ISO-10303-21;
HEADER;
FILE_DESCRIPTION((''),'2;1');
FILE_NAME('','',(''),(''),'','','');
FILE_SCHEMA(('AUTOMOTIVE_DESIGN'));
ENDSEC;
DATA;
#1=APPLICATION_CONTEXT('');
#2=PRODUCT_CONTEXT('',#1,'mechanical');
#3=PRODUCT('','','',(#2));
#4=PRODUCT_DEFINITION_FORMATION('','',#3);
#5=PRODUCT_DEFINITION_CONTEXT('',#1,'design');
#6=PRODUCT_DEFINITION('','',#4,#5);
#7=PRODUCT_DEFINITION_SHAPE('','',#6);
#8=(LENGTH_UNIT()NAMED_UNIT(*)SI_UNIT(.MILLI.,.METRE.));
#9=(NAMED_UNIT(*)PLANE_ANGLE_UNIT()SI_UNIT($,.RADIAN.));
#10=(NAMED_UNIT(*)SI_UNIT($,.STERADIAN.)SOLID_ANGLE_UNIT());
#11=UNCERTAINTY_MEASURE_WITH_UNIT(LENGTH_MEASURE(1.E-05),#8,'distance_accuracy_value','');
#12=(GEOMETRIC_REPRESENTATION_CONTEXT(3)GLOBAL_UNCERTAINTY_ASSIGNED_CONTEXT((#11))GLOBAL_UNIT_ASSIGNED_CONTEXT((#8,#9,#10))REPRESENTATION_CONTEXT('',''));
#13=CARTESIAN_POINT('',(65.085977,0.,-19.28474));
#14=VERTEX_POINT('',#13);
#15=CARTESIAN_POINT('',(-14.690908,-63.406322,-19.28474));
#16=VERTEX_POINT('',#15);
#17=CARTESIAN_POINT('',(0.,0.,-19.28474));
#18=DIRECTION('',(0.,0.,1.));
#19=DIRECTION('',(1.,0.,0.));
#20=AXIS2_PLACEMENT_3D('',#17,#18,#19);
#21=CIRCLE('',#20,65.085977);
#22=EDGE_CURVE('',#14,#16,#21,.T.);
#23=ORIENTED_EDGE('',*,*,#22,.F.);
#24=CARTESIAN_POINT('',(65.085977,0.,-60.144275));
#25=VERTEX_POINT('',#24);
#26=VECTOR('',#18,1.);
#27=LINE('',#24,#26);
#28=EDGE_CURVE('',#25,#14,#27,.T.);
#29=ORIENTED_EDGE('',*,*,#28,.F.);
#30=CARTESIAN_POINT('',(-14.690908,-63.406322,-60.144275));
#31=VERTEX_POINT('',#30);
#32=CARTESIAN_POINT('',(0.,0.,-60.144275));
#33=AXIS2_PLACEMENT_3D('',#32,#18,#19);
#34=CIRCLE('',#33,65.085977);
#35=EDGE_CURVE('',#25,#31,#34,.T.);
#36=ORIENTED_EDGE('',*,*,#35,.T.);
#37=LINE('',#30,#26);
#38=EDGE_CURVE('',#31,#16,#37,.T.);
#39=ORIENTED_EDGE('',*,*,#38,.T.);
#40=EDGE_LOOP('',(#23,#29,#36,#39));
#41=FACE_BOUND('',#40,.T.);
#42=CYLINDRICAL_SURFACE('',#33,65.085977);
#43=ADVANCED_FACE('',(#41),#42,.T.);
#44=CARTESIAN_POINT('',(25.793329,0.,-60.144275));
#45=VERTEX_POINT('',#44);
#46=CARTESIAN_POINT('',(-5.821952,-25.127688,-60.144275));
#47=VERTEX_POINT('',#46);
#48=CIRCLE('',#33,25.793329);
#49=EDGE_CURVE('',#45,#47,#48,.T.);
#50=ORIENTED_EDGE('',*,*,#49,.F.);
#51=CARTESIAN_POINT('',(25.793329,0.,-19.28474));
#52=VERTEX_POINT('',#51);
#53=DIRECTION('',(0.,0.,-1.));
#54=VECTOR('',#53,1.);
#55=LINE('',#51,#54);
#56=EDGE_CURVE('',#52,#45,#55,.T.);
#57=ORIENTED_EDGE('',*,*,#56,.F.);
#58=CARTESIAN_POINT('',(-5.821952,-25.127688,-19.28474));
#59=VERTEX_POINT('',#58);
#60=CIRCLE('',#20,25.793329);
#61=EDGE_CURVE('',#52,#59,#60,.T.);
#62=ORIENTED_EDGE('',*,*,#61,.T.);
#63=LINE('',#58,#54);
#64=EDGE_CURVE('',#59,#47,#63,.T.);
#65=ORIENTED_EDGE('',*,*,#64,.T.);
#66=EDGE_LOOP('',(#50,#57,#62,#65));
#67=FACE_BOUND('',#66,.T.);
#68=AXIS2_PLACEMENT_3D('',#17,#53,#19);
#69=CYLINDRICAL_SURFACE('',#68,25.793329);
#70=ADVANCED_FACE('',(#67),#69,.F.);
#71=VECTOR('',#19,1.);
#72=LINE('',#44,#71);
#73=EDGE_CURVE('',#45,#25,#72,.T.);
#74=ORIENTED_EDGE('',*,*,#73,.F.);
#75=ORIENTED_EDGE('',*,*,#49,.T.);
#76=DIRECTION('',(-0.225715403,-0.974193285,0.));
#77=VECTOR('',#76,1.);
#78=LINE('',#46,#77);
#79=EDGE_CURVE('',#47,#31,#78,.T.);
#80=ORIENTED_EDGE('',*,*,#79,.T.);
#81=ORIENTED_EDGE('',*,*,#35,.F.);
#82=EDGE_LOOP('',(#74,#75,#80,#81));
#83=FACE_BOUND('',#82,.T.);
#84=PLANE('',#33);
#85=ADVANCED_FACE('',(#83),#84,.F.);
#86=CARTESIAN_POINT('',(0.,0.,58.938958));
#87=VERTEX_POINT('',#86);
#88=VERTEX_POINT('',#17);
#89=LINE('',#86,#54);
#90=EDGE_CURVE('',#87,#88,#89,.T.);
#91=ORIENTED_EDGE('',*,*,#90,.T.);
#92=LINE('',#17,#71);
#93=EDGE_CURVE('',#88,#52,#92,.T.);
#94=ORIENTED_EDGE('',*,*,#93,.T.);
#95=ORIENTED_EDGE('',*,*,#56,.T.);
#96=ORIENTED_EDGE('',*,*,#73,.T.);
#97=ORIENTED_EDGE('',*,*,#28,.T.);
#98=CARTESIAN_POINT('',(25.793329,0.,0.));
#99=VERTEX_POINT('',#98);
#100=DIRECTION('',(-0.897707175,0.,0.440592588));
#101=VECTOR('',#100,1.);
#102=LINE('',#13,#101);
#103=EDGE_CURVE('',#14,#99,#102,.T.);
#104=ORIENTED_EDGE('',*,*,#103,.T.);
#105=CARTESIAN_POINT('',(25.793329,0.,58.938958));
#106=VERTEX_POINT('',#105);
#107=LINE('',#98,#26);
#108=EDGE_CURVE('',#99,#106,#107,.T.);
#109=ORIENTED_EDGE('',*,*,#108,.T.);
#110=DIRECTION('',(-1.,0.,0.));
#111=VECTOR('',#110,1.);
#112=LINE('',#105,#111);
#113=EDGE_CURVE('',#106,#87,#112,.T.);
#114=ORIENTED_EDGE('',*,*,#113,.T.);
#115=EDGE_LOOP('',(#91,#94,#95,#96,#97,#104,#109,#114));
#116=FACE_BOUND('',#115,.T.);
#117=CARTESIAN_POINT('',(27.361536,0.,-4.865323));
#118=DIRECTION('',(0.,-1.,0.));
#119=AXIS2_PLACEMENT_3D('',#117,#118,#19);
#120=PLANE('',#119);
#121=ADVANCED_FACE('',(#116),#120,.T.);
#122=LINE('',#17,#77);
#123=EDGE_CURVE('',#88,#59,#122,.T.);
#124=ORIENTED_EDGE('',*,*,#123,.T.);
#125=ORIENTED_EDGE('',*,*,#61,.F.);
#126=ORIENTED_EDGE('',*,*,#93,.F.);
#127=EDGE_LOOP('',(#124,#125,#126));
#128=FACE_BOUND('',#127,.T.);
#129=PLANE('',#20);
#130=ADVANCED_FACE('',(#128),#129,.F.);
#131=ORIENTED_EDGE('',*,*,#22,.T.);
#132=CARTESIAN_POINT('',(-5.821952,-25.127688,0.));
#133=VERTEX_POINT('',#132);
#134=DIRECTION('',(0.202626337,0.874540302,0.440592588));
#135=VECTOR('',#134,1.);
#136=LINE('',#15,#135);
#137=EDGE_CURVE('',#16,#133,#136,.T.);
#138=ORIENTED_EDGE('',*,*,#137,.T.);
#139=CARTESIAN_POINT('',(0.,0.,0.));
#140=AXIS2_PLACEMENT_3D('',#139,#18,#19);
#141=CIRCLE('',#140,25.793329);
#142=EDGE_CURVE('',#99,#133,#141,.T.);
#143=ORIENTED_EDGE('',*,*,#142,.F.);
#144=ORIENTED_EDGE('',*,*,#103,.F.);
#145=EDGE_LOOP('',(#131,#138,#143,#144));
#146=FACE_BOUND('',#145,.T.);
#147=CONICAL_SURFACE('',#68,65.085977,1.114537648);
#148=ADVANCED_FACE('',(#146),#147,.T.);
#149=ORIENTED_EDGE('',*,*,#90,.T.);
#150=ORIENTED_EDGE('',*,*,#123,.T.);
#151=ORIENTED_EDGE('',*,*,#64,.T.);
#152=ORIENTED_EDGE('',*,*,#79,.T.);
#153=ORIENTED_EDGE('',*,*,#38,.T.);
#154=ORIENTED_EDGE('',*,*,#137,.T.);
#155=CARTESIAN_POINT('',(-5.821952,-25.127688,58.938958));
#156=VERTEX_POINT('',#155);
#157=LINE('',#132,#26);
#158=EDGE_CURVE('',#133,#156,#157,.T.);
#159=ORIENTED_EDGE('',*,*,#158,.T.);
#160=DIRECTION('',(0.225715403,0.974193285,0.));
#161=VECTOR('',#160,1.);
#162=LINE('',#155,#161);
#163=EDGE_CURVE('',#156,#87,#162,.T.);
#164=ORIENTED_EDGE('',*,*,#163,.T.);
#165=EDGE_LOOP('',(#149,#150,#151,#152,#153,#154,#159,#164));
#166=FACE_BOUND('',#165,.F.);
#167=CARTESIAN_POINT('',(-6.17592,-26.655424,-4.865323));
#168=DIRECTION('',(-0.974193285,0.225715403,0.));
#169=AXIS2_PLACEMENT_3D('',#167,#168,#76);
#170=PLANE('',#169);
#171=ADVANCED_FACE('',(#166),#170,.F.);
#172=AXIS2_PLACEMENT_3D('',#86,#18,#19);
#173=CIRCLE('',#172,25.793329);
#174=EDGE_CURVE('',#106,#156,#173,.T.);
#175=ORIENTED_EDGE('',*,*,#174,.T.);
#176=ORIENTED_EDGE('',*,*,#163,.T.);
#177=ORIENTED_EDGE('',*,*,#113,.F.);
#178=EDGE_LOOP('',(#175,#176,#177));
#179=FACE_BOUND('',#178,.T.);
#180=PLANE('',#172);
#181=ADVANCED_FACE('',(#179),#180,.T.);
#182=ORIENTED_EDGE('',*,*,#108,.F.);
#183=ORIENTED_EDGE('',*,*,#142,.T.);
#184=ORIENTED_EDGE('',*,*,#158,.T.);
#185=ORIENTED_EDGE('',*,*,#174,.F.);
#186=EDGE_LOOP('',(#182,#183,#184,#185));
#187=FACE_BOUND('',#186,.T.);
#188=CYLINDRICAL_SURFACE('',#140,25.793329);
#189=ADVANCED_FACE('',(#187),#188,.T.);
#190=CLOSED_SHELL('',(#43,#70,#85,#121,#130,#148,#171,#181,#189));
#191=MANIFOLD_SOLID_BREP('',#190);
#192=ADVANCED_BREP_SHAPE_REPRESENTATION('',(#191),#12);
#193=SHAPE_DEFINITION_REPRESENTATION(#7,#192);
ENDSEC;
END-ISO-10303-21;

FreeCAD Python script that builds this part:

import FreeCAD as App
import Part
import Sketcher

V = App.Vector

doc = App.newDocument("Part")
body = doc.addObject("PartDesign::Body", "Body")

# Sketch on XZ plane
sketch1 = doc.addObject("Sketcher::SketchObject", "Sketch")
body.addObject(sketch1)
sketch1.AttachmentSupport = (doc.XZ_Plane, [""])
sketch1.MapMode = "FlatFace"
sketch1.addGeometry([
    Part.LineSegment(V(25.793329, 58.938958, 0), V(0, 58.938958, 0)),  # 0
    Part.LineSegment(V(0, 58.938958, 0), V(0, -19.28474, 0)),  # 1
    Part.LineSegment(V(0, -19.28474, 0), V(25.793329, -19.28474, 0)),  # 2
    Part.LineSegment(V(25.793329, -19.28474, 0), V(25.793329, -60.144275, 0)),  # 3
    Part.LineSegment(V(25.793329, -60.144275, 0), V(65.085977, -60.144275, 0)),  # 4
    Part.LineSegment(V(65.085977, -60.144275, 0), V(65.085977, -19.28474, 0)),  # 5
    Part.LineSegment(V(65.085977, -19.28474, 0), V(25.793329, 0, 0)),  # 6
    Part.LineSegment(V(25.793329, 0, 0), V(25.793329, 58.938958, 0)),  # 7
], False)
sketch1.addConstraint([
    Sketcher.Constraint("Coincident", 0, 2, 1, 1),
    Sketcher.Constraint("Coincident", 1, 2, 2, 1),
    Sketcher.Constraint("Coincident", 2, 2, 3, 1),
    Sketcher.Constraint("Coincident", 3, 2, 4, 1),
    Sketcher.Constraint("Coincident", 4, 2, 5, 1),
    Sketcher.Constraint("Coincident", 5, 2, 6, 1),
    Sketcher.Constraint("Coincident", 6, 2, 7, 1),
    Sketcher.Constraint("Coincident", 7, 2, 0, 1),
    Sketcher.Constraint("Horizontal", 0),
    Sketcher.Constraint("Vertical", 1),
    Sketcher.Constraint("Horizontal", 2),
    Sketcher.Constraint("Vertical", 3),
    Sketcher.Constraint("Horizontal", 4),
    Sketcher.Constraint("Vertical", 5),
    Sketcher.Constraint("Vertical", 7),
    Sketcher.Constraint("PointOnObject", 0, 2, -2),
    Sketcher.Constraint("PointOnObject", 6, 2, -1),
    Sketcher.Constraint("Horizontal", 2, 2, 5, 2),
    Sketcher.Constraint("Vertical", 3, 2, 6, 2),
    Sketcher.Constraint("DistanceY", 1, 2, 1, 1, 78.223698),
    Sketcher.Constraint("DistanceX", 0, 2, 0, 1, 25.793329),
    Sketcher.Constraint("DistanceX", 4, 1, 4, 2, 39.292648),
    Sketcher.Constraint("DistanceY", 3, 2, 3, 1, 40.859535),
    Sketcher.Constraint("DistanceY", 7, 1, 7, 2, 58.938958),
])
revolution = doc.addObject("PartDesign::Revolution", "Revolution")
body.addObject(revolution)
revolution.Profile = sketch1
revolution.ReferenceAxis = (sketch1, ["V_Axis"])
revolution.Angle = 256.95505

doc.recompute()
